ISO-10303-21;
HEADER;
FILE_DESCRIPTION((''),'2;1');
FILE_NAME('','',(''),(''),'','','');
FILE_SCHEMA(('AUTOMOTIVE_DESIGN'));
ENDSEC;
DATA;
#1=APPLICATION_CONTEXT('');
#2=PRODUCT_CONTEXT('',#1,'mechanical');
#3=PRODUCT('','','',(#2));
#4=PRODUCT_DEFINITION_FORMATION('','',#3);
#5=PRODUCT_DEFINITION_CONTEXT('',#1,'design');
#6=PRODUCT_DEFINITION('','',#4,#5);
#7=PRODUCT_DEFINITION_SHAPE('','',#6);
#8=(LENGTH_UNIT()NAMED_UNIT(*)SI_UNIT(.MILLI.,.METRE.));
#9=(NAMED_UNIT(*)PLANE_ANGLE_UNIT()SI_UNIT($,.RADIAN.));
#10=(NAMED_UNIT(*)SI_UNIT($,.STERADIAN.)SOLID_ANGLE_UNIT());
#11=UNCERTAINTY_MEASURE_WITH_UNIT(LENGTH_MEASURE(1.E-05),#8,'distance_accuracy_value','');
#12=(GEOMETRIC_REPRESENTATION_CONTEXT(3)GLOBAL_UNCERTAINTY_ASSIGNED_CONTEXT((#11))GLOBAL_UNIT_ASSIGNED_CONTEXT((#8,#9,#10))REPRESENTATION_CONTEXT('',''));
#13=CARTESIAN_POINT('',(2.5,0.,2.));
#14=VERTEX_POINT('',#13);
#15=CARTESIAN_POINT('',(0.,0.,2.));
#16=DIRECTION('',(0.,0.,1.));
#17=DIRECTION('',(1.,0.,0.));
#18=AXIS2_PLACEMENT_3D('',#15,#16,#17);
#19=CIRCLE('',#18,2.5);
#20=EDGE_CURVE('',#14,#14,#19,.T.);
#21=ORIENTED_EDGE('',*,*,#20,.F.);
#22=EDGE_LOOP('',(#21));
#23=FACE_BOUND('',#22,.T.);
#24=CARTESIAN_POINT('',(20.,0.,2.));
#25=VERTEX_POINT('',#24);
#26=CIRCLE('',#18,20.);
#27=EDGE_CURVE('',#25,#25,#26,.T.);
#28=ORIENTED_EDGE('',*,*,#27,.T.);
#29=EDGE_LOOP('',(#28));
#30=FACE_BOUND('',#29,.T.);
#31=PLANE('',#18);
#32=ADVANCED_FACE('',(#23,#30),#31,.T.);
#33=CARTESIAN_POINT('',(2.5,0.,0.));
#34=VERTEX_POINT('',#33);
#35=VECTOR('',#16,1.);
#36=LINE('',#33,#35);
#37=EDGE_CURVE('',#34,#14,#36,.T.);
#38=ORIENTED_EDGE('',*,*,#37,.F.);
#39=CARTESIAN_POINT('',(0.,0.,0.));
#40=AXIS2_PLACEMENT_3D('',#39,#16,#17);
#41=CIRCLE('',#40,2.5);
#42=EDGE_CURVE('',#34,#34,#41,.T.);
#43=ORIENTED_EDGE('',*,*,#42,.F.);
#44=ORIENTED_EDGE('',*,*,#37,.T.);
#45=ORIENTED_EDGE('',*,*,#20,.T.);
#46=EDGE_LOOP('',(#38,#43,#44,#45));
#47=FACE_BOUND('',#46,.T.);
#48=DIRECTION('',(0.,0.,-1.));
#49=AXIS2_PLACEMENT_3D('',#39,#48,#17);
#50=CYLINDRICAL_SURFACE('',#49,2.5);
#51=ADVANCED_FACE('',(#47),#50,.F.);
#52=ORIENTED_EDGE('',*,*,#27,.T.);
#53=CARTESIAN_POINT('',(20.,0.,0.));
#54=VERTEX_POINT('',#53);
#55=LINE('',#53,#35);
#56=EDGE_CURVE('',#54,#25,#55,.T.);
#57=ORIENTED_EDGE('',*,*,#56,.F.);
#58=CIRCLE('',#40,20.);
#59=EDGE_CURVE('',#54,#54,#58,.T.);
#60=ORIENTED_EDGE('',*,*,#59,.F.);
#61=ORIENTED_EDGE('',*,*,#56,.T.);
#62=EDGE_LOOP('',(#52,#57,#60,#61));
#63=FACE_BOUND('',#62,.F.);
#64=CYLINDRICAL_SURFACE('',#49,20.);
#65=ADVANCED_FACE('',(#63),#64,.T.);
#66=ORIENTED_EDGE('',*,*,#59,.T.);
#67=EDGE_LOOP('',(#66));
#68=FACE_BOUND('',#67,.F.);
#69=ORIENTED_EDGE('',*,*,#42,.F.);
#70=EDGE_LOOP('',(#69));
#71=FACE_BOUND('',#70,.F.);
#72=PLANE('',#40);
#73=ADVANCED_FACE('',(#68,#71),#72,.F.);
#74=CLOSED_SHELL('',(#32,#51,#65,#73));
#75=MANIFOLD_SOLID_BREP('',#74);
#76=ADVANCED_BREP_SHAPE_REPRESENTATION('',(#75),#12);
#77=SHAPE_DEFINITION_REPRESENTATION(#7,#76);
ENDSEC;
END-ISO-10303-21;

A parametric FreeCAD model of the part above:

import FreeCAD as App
import Part
import Sketcher
Q = App.Units.Quantity

doc = App.newDocument("Part")
body = doc.addObject("PartDesign::Body", "Body")

# Sketch on XY plane
sketch1 = body.newObject("Sketcher::SketchObject", "Sketch")
sketch1.AttachmentSupport = (doc.getObject("XY_Plane"), [""])
sketch1.MapMode = "FlatFace"
sketch1.addGeometry([
    Part.Circle(App.Vector(0, 0, 0), App.Vector(0, 0, 1), 20),
    Part.Circle(App.Vector(0, 0, 0), App.Vector(0, 0, 1), 2.5),
], False)
sketch1.addConstraint([
    Sketcher.Constraint("Coincident", 0, 3, -1, 1),
    Sketcher.Constraint("Coincident", 1, 3, -1, 1),
    Sketcher.Constraint("Diameter", 1, Q("5 mm")),
    Sketcher.Constraint("Diameter", 0, Q("40 mm")),
])
pad1 = body.newObject("PartDesign::Pad", "Pad")
pad1.Profile = sketch1
pad1.Length = 2

doc.recompute()
